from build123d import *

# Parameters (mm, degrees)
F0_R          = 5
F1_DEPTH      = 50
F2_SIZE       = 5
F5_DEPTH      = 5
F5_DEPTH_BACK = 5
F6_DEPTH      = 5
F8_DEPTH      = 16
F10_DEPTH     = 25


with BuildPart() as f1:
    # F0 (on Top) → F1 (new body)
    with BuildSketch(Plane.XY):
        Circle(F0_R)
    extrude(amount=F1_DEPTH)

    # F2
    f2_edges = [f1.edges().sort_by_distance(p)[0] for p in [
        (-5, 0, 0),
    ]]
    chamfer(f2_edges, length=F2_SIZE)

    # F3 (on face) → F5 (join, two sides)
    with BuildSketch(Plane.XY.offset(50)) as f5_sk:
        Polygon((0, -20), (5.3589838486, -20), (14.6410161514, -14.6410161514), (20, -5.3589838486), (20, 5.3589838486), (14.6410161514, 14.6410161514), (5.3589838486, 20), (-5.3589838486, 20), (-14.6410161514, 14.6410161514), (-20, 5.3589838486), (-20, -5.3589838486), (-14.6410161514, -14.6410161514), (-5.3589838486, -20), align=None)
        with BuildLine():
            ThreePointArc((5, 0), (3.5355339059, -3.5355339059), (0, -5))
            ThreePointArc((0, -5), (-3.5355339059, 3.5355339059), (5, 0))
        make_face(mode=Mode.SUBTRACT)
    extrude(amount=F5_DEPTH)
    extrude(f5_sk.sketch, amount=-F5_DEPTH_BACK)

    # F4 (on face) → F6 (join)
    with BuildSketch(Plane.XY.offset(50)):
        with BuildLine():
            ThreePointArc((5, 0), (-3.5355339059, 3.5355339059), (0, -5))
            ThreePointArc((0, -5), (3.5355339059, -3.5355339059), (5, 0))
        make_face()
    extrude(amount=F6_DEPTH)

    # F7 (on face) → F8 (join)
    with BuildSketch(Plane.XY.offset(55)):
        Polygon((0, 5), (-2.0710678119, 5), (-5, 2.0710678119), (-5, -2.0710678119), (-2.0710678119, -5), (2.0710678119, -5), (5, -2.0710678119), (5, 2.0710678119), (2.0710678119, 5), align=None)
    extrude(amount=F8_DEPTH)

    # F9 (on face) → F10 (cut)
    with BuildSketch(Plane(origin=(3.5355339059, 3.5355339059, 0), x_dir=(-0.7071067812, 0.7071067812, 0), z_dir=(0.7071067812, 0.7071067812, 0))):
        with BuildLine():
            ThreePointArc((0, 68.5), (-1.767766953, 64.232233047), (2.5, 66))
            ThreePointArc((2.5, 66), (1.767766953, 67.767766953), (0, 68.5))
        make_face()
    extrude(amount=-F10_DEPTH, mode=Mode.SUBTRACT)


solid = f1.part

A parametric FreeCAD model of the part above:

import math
import FreeCAD as App
import Part
import Sketcher

V = App.Vector
Q = App.Units.Quantity


def edges_at(feature, points):
    """Names of the edges that pass closest to the given points."""
    edges = feature.Shape.Edges
    near = lambda p: min(range(len(edges)), key=lambda i: edges[i].distToShape(Part.Vertex(*p))[0])
    return sorted({f"Edge{near(p) + 1}" for p in points})

doc = App.newDocument("Part")
params = doc.addObject("Spreadsheet::Sheet", "Params")
for row, (alias, value) in enumerate([
    ("sketch1_diameter", "10 mm"),
    ("pad1_length", "50 mm"),
    ("chamfer_size", "5 mm"),
    ("sketch2_radius", "5 mm"),
    ("pad2_length", "5 mm"),
    ("pad2_length2", "5 mm"),
    ("sketch3_radius", "5 mm"),
    ("pad3_length", "5 mm"),
    ("pad4_length", "16 mm"),
    ("sketch5_radius", "2.5 mm"),
    ("pocket1_length", "25 mm"),
], start=1):
    params.set(f"A{row}", alias)
    params.set(f"B{row}", "=" + value)
    params.setAlias(f"B{row}", alias)

body = doc.addObject("PartDesign::Body", "Body")

sketch1 = body.newObject("Sketcher::SketchObject", "Sketch")
sketch1.AttachmentSupport = (doc.getObject("XY_Plane"), [""])
sketch1.MapMode = "FlatFace"
sketch1.addGeometry(Part.Circle(V(0, 0, 0), V(0, 0, 1), 5), False)
sketch1.addConstraint(Sketcher.Constraint("Coincident", 0, 3, -1, 1))
sketch1.addConstraint(Sketcher.Constraint("Diameter", 0, Q("10 mm")))
sketch1.setExpression("Constraints[1]", "Params.sketch1_diameter")
pad1 = body.newObject("PartDesign::Pad", "Pad")
pad1.Profile = sketch1
pad1.setExpression("Length", "Params.pad1_length")
doc.recompute()

chamfer = body.newObject("PartDesign::Chamfer", "Chamfer")
chamfer.Base = (pad1, edges_at(pad1, [(-5, 0, 0)]))
chamfer.setExpression("Size", "Params.chamfer_size")

sketch2 = body.newObject("Sketcher::SketchObject", "Sketch001")
sketch2.AttachmentSupport = (doc.getObject("XY_Plane"), [""])
sketch2.MapMode = "FlatFace"
sketch2.AttachmentOffset = App.Placement(V(0, 0, 50), App.Rotation())
sketch2.addGeometry(Part.LineSegment(V(5.358984, -20, 0), V(14.641016, -14.641016, 0)), False)
sketch2.addGeometry(Part.LineSegment(V(14.641016, -14.641016, 0), V(20, -5.358984, 0)), False)
sketch2.addGeometry(Part.LineSegment(V(20, -5.358984, 0), V(20, 5.358984, 0)), False)
sketch2.addGeometry(Part.LineSegment(V(20, 5.358984, 0), V(14.641016, 14.641016, 0)), False)
sketch2.addGeometry(Part.LineSegment(V(14.641016, 14.641016, 0), V(5.358984, 20, 0)), False)
sketch2.addGeometry(Part.LineSegment(V(5.358984, 20, 0), V(-5.358984, 20, 0)), False)
sketch2.addGeometry(Part.LineSegment(V(-5.358984, 20, 0), V(-14.641016, 14.641016, 0)), False)
sketch2.addGeometry(Part.LineSegment(V(-14.641016, 14.641016, 0), V(-20, 5.358984, 0)), False)
sketch2.addGeometry(Part.LineSegment(V(-20, 5.358984, 0), V(-20, -5.358984, 0)), False)
sketch2.addGeometry(Part.LineSegment(V(-20, -5.358984, 0), V(-14.641016, -14.641016, 0)), False)
sketch2.addGeometry(Part.LineSegment(V(-14.641016, -14.641016, 0), V(-5.358984, -20, 0)), False)
sketch2.addGeometry(Part.LineSegment(V(-5.358984, -20, 0), V(5.358984, -20, 0)), False)
sketch2.addGeometry(Part.ArcOfCircle(Part.Circle(V(0, 0, 0), V(0, 0, 1), 5), math.radians(0), math.radians(270)), False)
sketch2.addGeometry(Part.ArcOfCircle(Part.Circle(V(0, 0, 0), V(0, 0, 1), 5), math.radians(-90), math.radians(0)), False)
sketch2.addConstraint(Sketcher.Constraint("Coincident", 0, 2, 1, 1))
sketch2.addConstraint(Sketcher.Constraint("Coincident", 1, 2, 2, 1))
sketch2.addConstraint(Sketcher.Constraint("Coincident", 2, 2, 3, 1))
sketch2.addConstraint(Sketcher.Constraint("Coincident", 3, 2, 4, 1))
sketch2.addConstraint(Sketcher.Constraint("Coincident", 4, 2, 5, 1))
sketch2.addConstraint(Sketcher.Constraint("Coincident", 5, 2, 6, 1))
sketch2.addConstraint(Sketcher.Constraint("Coincident", 6, 2, 7, 1))
sketch2.addConstraint(Sketcher.Constraint("Coincident", 7, 2, 8, 1))
sketch2.addConstraint(Sketcher.Constraint("Coincident", 8, 2, 9, 1))
sketch2.addConstraint(Sketcher.Constraint("Coincident", 9, 2, 10, 1))
sketch2.addConstraint(Sketcher.Constraint("Coincident", 10, 2, 11, 1))
sketch2.addConstraint(Sketcher.Constraint("Coincident", 11, 2, 0, 1))
sketch2.addConstraint(Sketcher.Constraint("Tangent", 12, 1, 13, 2))
sketch2.addConstraint(Sketcher.Constraint("Coincident", 13, 1, 12, 2))
sketch2.addConstraint(Sketcher.Constraint("Vertical", 2))
sketch2.addConstraint(Sketcher.Constraint("Horizontal", 5))
sketch2.addConstraint(Sketcher.Constraint("Vertical", 8))
sketch2.addConstraint(Sketcher.Constraint("Horizontal", 11))
sketch2.addConstraint(Sketcher.Constraint("Coincident", 12, 3, -1, 1))
sketch2.addConstraint(Sketcher.Constraint("Symmetric", 0, 2, 6, 2, -1, 1))
sketch2.addConstraint(Sketcher.Constraint("Symmetric", 1, 2, 7, 2, -1, 1))
sketch2.addConstraint(Sketcher.Constraint("Symmetric", 3, 2, 9, 2, -1, 1))
sketch2.addConstraint(Sketcher.Constraint("Symmetric", 4, 2, 10, 2, -1, 1))
sketch2.addConstraint(Sketcher.Constraint("Symmetric", 3, 2, 6, 2, -2))
sketch2.addConstraint(Sketcher.Constraint("PointOnObject", 12, 1, -1))
sketch2.addConstraint(Sketcher.Constraint("PointOnObject", 13, 1, -2))
sketch2.addConstraint(Sketcher.Constraint("Perpendicular", 0, 3))
sketch2.addConstraint(Sketcher.Constraint("Perpendicular", 1, 4))
sketch2.addConstraint(Sketcher.Constraint("Perpendicular", 3, 6))
sketch2.addConstraint(Sketcher.Constraint("Perpendicular", 6, 9))
sketch2.addConstraint(Sketcher.Constraint("Horizontal", 2, 2, 7, 2))
sketch2.addConstraint(Sketcher.Constraint("Equal", 11, 2))
sketch2.addConstraint(Sketcher.Constraint("Equal", 0, 1))
sketch2.addConstraint(Sketcher.Constraint("Radius", 12, Q("5 mm")))
sketch2.addConstraint(Sketcher.Constraint("Angle", 0, Q("30 deg")))
sketch2.addConstraint(Sketcher.Constraint("DistanceX", -1, 1, 1, 2, Q("20 mm")))
sketch2.addConstraint(Sketcher.Constraint("DistanceY", 0, 2, 2, 2, Q("20 mm")))
sketch2.setExpression("Constraints[33]", "Params.sketch2_radius")
pad2 = body.newObject("PartDesign::Pad", "Pad001")
pad2.Profile = sketch2
pad2.Type = "TwoLengths"
pad2.setExpression("Length", "Params.pad2_length")
pad2.setExpression("Length2", "Params.pad2_length2")

sketch3 = body.newObject("Sketcher::SketchObject", "Sketch002")
sketch3.AttachmentSupport = (doc.getObject("XY_Plane"), [""])
sketch3.MapMode = "FlatFace"
sketch3.AttachmentOffset = App.Placement(V(0, 0, 50), App.Rotation())
sketch3.addGeometry(Part.ArcOfCircle(Part.Circle(V(0, 0, 0), V(0, 0, 1), 5), math.radians(0), math.radians(270)), False)
sketch3.addGeometry(Part.ArcOfCircle(Part.Circle(V(0, 0, 0), V(0, 0, 1), 5), math.radians(-90), math.radians(0)), False)
sketch3.addConstraint(Sketcher.Constraint("Tangent", 0, 1, 1, 2))
sketch3.addConstraint(Sketcher.Constraint("Coincident", 1, 1, 0, 2))
sketch3.addConstraint(Sketcher.Constraint("Coincident", 0, 3, -1, 1))
sketch3.addConstraint(Sketcher.Constraint("PointOnObject", 0, 1, -1))
sketch3.addConstraint(Sketcher.Constraint("PointOnObject", 1, 1, -2))
sketch3.addConstraint(Sketcher.Constraint("Radius", 0, Q("5 mm")))
sketch3.setExpression("Constraints[5]", "Params.sketch3_radius")
pad3 = body.newObject("PartDesign::Pad", "Pad002")
pad3.Profile = sketch3
pad3.setExpression("Length", "Params.pad3_length")

sketch4 = body.newObject("Sketcher::SketchObject", "Sketch003")
sketch4.AttachmentSupport = (doc.getObject("XY_Plane"), [""])
sketch4.MapMode = "FlatFace"
sketch4.AttachmentOffset = App.Placement(V(0, 0, 55), App.Rotation())
sketch4.addGeometry(Part.LineSegment(V(-2.071068, 5, 0), V(-5, 2.071068, 0)), False)
sketch4.addGeometry(Part.LineSegment(V(-5, 2.071068, 0), V(-5, -2.071068, 0)), False)
sketch4.addGeometry(Part.LineSegment(V(-5, -2.071068, 0), V(-2.071068, -5, 0)), False)
sketch4.addGeometry(Part.LineSegment(V(-2.071068, -5, 0), V(2.071068, -5, 0)), False)
sketch4.addGeometry(Part.LineSegment(V(2.071068, -5, 0), V(5, -2.071068, 0)), False)
sketch4.addGeometry(Part.LineSegment(V(5, -2.071068, 0), V(5, 2.071068, 0)), False)
sketch4.addGeometry(Part.LineSegment(V(5, 2.071068, 0), V(2.071068, 5, 0)), False)
sketch4.addGeometry(Part.LineSegment(V(2.071068, 5, 0), V(-2.071068, 5, 0)), False)
sketch4.addConstraint(Sketcher.Constraint("Coincident", 0, 2, 1, 1))
sketch4.addConstraint(Sketcher.Constraint("Coincident", 1, 2, 2, 1))
sketch4.addConstraint(Sketcher.Constraint("Coincident", 2, 2, 3, 1))
sketch4.addConstraint(Sketcher.Constraint("Coincident", 3, 2, 4, 1))
sketch4.addConstraint(Sketcher.Constraint("Coincident", 4, 2, 5, 1))
sketch4.addConstraint(Sketcher.Constraint("Coincident", 5, 2, 6, 1))
sketch4.addConstraint(Sketcher.Constraint("Coincident", 6, 2, 7, 1))
sketch4.addConstraint(Sketcher.Constraint("Coincident", 7, 2, 0, 1))
sketch4.addConstraint(Sketcher.Constraint("Vertical", 1))
sketch4.addConstraint(Sketcher.Constraint("Horizontal", 3))
sketch4.addConstraint(Sketcher.Constraint("Vertical", 5))
sketch4.addConstraint(Sketcher.Constraint("Horizontal", 7))
sketch4.addConstraint(Sketcher.Constraint("Symmetric", 0, 2, 4, 2, -1, 1))
sketch4.addConstraint(Sketcher.Constraint("Symmetric", 2, 2, 6, 2, -1, 1))
sketch4.addConstraint(Sketcher.Constraint("Perpendicular", 0, 2))
sketch4.addConstraint(Sketcher.Constraint("Perpendicular", 2, 4))
sketch4.addConstraint(Sketcher.Constraint("Perpendicular", 4, 6))
sketch4.addConstraint(Sketcher.Constraint("Horizontal", 1, 2, 4, 2))
sketch4.addConstraint(Sketcher.Constraint("Vertical", 3, 2, 6, 2))
sketch4.addConstraint(Sketcher.Constraint("Equal", 7, 1))
sketch4.addConstraint(Sketcher.Constraint("DistanceX", 0, 2, -1, 1, Q("5 mm")))
sketch4.addConstraint(Sketcher.Constraint("DistanceX", 3, 1, 3, 2, Q("4.142136 mm")))
pad4 = body.newObject("PartDesign::Pad", "Pad003")
pad4.Profile = sketch4
pad4.setExpression("Length", "Params.pad4_length")

sketch5 = body.newObject("Sketcher::SketchObject", "Sketch004")
sketch5.Placement = App.Placement(V(3.535534, 3.535534, 0), App.Rotation(V(-0.707106781, 0.707106781, 0), V(0, 0, 0.999999999), V(0.707106781, 0.707106781, 0), "ZXY"))
sketch5.addGeometry(Part.ArcOfCircle(Part.Circle(V(0, 66, 0), V(0, 0, 1), 2.5), math.radians(90), math.radians(360)), False)
sketch5.addGeometry(Part.ArcOfCircle(Part.Circle(V(0, 66, 0), V(0, 0, 1), 2.5), math.radians(0), math.radians(90)), False)
sketch5.addConstraint(Sketcher.Constraint("Tangent", 0, 1, 1, 2))
sketch5.addConstraint(Sketcher.Constraint("Coincident", 1, 1, 0, 2))
sketch5.addConstraint(Sketcher.Constraint("PointOnObject", 0, 3, -2))
sketch5.addConstraint(Sketcher.Constraint("PointOnObject", 0, 1, -2))
sketch5.addConstraint(Sketcher.Constraint("Horizontal", 0, 3, 1, 1))
sketch5.addConstraint(Sketcher.Constraint("Radius", 0, Q("2.5 mm")))
sketch5.addConstraint(Sketcher.Constraint("DistanceY", -1, 1, 0, 3, Q("66 mm")))
sketch5.setExpression("Constraints[5]", "Params.sketch5_radius")
pocket1 = body.newObject("PartDesign::Pocket", "Pocket")
pocket1.Profile = sketch5
pocket1.setExpression("Length", "Params.pocket1_length")

doc.recompute()
